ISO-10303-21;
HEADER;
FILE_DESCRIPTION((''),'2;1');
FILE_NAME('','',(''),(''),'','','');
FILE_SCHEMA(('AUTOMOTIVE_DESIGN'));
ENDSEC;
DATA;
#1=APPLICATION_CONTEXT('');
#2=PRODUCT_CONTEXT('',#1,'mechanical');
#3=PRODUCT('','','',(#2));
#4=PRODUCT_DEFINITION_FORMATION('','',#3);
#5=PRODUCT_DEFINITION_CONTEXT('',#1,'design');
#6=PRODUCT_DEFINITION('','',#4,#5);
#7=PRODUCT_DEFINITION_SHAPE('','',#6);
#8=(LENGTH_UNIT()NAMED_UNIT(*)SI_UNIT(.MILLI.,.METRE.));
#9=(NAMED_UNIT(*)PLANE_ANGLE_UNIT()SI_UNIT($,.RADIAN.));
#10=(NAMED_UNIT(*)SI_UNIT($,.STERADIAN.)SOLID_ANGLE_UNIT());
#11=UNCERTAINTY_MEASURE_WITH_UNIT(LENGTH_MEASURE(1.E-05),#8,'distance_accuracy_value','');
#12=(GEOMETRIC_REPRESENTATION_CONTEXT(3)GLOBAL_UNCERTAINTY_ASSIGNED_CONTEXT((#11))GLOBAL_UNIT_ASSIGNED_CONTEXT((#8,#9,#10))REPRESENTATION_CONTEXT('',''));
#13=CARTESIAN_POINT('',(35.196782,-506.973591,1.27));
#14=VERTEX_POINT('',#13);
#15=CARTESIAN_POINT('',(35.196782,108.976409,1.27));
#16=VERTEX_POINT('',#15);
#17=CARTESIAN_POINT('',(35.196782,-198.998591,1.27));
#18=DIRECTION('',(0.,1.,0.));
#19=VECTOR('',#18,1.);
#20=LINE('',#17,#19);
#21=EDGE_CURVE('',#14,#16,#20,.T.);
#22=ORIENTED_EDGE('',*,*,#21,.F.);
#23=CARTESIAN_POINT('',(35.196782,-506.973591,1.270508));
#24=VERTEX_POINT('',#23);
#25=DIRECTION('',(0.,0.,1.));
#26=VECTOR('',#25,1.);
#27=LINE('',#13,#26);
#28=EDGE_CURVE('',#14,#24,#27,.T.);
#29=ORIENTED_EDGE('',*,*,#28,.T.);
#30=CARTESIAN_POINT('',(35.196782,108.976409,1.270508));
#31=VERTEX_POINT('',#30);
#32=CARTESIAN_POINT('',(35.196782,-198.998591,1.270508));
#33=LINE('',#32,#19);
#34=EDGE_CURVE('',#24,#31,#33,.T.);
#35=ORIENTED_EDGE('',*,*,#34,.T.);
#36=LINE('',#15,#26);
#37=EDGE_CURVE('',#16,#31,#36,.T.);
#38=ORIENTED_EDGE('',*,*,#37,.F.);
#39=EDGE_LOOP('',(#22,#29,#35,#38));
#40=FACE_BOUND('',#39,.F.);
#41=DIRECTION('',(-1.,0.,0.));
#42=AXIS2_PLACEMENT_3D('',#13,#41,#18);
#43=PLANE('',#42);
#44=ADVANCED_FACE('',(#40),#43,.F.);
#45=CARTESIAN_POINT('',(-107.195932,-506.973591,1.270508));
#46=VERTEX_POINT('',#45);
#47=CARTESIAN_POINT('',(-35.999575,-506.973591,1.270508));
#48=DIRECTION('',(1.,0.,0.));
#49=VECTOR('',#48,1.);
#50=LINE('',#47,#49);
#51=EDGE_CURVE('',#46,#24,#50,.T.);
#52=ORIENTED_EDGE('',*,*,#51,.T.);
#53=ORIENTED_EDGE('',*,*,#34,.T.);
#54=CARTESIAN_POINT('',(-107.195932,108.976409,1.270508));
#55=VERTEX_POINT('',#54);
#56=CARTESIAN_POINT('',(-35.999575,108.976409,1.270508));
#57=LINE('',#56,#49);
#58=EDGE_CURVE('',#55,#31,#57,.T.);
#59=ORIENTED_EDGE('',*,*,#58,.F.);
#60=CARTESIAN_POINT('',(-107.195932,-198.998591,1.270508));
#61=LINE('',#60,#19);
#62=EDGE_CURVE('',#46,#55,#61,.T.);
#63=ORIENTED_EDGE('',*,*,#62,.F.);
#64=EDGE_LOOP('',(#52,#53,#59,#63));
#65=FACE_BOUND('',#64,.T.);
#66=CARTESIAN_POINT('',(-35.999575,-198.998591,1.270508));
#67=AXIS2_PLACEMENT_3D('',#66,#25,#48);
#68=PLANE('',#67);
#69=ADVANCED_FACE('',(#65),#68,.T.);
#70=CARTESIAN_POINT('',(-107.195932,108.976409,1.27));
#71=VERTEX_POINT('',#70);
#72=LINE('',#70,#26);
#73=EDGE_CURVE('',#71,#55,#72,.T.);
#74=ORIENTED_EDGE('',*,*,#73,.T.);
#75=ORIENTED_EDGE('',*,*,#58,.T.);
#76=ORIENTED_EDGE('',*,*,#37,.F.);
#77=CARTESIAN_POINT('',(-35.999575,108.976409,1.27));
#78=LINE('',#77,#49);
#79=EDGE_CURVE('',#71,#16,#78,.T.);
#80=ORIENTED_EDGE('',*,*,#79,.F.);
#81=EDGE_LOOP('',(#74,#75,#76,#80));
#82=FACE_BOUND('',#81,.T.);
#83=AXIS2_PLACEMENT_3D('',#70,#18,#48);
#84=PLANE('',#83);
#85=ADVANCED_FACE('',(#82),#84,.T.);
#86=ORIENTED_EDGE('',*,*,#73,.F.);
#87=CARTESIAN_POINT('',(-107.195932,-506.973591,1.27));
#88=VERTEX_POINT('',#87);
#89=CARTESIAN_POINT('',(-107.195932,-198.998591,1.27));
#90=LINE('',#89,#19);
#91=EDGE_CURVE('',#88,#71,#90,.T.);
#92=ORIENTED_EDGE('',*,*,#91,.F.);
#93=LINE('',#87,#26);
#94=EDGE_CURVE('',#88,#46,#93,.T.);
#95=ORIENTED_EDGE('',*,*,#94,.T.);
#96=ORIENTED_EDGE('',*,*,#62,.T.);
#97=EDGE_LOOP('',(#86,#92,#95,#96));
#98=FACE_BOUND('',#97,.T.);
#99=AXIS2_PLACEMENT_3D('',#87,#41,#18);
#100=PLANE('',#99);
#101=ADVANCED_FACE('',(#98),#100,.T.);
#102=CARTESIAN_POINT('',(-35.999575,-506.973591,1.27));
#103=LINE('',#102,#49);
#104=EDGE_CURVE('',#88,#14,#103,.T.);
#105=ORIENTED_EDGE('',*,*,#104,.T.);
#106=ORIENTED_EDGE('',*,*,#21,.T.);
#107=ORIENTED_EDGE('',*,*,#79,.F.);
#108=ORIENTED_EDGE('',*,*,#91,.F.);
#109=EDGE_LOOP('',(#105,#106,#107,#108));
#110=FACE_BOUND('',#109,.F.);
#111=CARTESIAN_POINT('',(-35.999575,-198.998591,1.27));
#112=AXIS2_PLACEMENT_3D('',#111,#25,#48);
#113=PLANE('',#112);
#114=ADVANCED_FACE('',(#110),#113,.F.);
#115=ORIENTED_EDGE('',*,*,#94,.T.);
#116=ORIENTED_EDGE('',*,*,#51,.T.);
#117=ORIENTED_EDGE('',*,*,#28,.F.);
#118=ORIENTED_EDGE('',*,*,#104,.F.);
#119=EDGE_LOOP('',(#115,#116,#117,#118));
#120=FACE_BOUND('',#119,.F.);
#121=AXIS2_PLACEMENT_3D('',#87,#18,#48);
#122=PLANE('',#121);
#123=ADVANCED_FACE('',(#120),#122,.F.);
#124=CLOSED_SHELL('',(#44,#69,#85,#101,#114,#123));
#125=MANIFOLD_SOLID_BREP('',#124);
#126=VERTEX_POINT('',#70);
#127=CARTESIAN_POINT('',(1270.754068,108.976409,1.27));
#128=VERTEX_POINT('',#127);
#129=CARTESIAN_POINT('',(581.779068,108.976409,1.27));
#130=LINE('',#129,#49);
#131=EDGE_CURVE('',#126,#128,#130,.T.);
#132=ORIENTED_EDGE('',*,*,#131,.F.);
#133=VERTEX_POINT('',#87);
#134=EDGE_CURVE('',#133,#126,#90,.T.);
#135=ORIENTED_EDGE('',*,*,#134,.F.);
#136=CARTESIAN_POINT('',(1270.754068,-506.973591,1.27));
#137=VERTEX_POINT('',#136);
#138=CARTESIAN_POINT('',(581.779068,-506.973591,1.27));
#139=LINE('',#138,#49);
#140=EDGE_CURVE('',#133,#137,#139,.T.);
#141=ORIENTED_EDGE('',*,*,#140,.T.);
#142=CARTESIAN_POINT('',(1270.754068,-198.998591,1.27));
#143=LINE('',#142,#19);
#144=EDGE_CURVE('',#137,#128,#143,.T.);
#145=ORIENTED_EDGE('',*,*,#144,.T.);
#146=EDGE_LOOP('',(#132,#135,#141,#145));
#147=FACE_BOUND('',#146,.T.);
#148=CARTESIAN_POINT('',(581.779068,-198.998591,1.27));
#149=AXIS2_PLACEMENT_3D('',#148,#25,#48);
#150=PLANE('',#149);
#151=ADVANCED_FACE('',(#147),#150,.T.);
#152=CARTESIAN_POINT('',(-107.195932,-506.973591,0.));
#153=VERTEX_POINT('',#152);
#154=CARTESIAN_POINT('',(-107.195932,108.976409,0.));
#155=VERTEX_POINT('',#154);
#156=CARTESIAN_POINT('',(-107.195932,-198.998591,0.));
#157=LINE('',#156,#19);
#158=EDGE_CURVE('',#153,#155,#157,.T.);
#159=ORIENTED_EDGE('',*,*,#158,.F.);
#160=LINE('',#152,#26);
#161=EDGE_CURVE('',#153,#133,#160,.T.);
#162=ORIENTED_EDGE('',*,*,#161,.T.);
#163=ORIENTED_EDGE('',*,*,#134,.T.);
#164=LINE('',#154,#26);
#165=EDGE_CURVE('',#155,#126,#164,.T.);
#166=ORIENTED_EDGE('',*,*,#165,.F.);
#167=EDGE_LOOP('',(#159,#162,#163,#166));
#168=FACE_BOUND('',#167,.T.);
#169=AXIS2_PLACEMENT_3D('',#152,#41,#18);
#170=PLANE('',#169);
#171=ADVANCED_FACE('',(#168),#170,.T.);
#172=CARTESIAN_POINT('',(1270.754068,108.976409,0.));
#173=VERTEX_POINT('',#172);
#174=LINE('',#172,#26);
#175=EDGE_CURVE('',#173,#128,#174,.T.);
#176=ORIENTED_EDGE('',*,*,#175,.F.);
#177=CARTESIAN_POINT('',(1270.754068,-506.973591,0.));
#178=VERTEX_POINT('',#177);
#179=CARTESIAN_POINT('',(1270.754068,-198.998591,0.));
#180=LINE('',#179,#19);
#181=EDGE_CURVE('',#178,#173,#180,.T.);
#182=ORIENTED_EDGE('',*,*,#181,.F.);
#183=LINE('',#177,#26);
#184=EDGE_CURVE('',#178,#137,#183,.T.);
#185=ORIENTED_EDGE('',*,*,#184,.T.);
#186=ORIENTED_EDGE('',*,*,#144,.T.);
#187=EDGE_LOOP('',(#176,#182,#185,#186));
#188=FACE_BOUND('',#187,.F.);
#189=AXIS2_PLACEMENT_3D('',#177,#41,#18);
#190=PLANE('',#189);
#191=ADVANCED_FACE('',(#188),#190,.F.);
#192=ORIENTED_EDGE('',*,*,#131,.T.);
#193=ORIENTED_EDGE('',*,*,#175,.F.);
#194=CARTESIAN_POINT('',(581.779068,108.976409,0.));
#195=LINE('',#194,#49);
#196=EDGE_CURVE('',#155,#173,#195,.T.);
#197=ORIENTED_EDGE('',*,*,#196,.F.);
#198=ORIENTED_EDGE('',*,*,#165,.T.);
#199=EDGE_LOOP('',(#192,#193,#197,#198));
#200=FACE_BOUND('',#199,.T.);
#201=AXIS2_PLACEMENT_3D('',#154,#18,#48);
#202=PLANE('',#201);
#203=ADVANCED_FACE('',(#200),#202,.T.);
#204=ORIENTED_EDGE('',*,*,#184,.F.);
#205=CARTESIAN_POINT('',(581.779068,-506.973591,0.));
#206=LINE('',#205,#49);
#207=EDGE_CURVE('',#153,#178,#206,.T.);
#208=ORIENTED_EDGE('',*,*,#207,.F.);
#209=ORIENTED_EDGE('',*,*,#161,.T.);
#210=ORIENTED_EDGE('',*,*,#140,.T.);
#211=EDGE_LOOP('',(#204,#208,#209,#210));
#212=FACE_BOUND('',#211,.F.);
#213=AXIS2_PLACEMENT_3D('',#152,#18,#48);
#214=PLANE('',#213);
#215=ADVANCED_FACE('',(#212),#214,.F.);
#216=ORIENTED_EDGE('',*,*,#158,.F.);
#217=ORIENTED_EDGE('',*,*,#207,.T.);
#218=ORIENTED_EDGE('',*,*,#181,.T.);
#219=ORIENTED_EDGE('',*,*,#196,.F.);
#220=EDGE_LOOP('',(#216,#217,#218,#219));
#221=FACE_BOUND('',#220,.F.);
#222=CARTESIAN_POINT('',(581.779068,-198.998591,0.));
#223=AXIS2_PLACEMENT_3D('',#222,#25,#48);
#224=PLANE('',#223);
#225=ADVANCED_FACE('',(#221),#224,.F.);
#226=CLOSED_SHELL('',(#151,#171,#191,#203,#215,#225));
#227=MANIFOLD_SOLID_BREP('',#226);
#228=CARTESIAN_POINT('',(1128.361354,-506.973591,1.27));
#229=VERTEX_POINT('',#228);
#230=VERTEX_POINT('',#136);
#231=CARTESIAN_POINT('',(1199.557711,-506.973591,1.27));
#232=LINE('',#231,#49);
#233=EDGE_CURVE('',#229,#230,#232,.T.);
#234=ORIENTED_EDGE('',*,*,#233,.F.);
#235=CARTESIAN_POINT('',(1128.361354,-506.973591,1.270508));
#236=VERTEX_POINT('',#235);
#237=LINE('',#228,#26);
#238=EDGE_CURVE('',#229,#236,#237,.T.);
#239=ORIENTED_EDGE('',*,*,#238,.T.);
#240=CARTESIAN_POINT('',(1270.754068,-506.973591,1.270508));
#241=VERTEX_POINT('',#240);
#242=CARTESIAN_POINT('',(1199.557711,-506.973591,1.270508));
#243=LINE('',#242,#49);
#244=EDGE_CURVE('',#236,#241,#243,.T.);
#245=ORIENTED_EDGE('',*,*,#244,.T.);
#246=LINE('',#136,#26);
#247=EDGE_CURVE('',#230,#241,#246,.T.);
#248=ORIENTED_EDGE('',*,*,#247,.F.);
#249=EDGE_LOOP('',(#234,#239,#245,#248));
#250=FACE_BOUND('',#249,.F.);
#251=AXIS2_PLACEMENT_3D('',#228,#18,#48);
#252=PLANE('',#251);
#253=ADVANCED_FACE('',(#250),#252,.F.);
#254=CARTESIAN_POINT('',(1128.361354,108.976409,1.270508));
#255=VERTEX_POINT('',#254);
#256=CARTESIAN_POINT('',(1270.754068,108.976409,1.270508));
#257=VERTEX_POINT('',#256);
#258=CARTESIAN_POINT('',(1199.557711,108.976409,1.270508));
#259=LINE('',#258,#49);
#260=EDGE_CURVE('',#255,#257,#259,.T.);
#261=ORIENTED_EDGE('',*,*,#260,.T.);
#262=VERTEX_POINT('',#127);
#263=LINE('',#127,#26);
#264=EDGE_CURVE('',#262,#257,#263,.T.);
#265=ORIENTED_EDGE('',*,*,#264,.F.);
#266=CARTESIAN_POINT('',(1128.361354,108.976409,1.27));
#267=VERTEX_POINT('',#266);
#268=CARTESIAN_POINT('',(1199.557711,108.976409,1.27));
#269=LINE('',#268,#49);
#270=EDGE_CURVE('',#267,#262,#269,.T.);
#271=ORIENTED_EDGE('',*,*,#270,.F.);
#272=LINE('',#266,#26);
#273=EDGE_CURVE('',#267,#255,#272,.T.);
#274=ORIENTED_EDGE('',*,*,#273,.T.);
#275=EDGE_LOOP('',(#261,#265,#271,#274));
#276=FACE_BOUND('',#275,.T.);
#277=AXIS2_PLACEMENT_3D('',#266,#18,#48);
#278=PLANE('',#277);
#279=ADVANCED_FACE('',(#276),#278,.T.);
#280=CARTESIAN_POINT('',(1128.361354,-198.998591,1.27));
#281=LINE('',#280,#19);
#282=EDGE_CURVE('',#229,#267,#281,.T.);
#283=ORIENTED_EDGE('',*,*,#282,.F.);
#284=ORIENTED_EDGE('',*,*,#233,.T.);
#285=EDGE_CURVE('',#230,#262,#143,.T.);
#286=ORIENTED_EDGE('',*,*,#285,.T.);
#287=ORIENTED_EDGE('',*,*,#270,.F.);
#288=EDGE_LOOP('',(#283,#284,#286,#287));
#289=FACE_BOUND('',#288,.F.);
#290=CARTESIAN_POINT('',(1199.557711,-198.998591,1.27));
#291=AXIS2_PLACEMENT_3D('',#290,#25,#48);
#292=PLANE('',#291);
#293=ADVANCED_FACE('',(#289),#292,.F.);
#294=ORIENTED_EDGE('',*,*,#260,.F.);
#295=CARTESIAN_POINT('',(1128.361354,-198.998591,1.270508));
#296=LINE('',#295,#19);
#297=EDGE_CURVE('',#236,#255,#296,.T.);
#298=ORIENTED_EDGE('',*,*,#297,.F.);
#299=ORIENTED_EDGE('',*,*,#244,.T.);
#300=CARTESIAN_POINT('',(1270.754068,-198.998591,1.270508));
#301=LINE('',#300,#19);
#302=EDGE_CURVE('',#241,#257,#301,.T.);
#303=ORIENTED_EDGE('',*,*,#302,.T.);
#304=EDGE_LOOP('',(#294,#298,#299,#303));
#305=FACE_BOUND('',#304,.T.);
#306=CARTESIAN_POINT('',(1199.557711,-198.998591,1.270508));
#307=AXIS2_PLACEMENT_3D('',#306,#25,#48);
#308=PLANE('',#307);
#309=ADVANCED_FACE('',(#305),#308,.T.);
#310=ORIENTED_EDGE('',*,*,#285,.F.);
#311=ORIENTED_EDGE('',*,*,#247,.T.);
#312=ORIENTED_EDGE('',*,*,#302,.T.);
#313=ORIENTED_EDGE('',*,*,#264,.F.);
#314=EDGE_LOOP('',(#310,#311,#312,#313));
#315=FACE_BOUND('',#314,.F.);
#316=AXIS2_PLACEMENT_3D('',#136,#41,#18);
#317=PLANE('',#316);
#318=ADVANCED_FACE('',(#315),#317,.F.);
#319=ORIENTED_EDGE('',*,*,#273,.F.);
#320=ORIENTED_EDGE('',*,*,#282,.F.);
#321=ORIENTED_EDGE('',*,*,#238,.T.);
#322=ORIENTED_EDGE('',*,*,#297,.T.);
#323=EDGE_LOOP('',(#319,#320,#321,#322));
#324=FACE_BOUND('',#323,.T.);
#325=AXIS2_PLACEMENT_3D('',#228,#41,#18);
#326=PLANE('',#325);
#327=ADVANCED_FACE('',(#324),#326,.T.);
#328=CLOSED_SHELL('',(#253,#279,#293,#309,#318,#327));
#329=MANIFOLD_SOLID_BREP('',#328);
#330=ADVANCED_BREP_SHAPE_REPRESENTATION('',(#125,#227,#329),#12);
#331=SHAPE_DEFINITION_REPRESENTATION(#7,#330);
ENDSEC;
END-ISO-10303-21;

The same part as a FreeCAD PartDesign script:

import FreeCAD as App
import Part
import Sketcher

V = App.Vector
Q = App.Units.Quantity


def add_polygon(sketch, points):
    """Adds a closed chain of lines whose ends are joined by coincident constraints."""
    first, n = sketch.GeometryCount, len(points)
    for a, b in zip(points, points[1:] + points[:1]):
        sketch.addGeometry(Part.LineSegment(App.Vector(*a, 0), App.Vector(*b, 0)), False)
    for i in range(n):
        sketch.addConstraint(Sketcher.Constraint("Coincident", first + i, 2, first + (i + 1) % n, 1))

doc = App.newDocument("Part")
body = doc.addObject("PartDesign::Body", "Body")

sketch1 = body.newObject("Sketcher::SketchObject", "Sketch")
sketch1.AttachmentSupport = (doc.getObject("XY_Plane"), [""])
sketch1.MapMode = "FlatFace"
add_polygon(sketch1, [(-107, 109), (-107, -507), (1271, -507), (1271, 109)])
sketch1.addConstraint([
    Sketcher.Constraint("Vertical", 0),
    Sketcher.Constraint("Horizontal", 1),
    Sketcher.Constraint("Vertical", 2),
    Sketcher.Constraint("Horizontal", 3),
    Sketcher.Constraint("DistanceX", 1, 1, 1, 2, Q("54.25 in")),
    Sketcher.Constraint("DistanceY", 0, 2, 0, 1, Q("24.25 in")),
    Sketcher.Constraint("DistanceX", 0, 2, -1, 1, 107.195932),
    Sketcher.Constraint("DistanceY", 0, 2, -1, 1, 506.973591),
])
pad1 = body.newObject("PartDesign::Pad", "Pad")
pad1.Profile = sketch1
pad1.Length = Q("0.05 in")
body2 = doc.addObject("PartDesign::Body", "Body001")
body2.AllowCompound = True

sketch2 = body2.newObject("Sketcher::SketchObject", "Sketch001")
sketch2.AttachmentSupport = (doc.getObject("XY_Plane001"), [""])
sketch2.MapMode = "FlatFace"
sketch2.AttachmentOffset = App.Placement(V(0, 0, 0.05 * 25.4), App.Rotation())
add_polygon(sketch2, [(-107, 109), (-107, -507), (35, -507), (35, 109)])
add_polygon(sketch2, [(1128, 109), (1128, -507), (1271, -507), (1271, 109)])
sketch2.addConstraint([
    Sketcher.Constraint("Vertical", 0),
    Sketcher.Constraint("Horizontal", 1),
    Sketcher.Constraint("Vertical", 2),
    Sketcher.Constraint("Horizontal", 3),
    Sketcher.Constraint("Vertical", 4),
    Sketcher.Constraint("Horizontal", 5),
    Sketcher.Constraint("Vertical", 6),
    Sketcher.Constraint("Horizontal", 7),
    Sketcher.Constraint("Horizontal", 1, 2, 4, 2),
    Sketcher.Constraint("Horizontal", 3, 2, 6, 2),
    Sketcher.Constraint("Equal", 3, 5),
    Sketcher.Constraint("DistanceY", 0, 2, 0, 1, Q("24.25 in")),
    Sketcher.Constraint("DistanceX", 0, 2, 5, 2, Q("54.25 in")),
    Sketcher.Constraint("DistanceX", -1, 1, 1, 2, Q("1.3857001 in")),
    Sketcher.Constraint("DistanceX", 1, 1, 1, 2, 142.392713),
    Sketcher.Constraint("DistanceY", 0, 2, -1, 1, 506.973591),
])
pad2 = body2.newObject("PartDesign::Pad", "Pad001")
pad2.Profile = sketch2
pad2.Length = 0.000508

doc.recompute()
